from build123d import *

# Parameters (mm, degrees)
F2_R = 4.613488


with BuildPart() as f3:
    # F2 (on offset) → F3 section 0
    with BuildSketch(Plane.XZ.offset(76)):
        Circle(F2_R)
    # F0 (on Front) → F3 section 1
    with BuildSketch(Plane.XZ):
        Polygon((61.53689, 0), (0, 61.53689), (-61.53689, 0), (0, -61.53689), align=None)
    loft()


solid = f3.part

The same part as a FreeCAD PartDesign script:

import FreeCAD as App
import Part
import Sketcher
Q = App.Units.Quantity

doc = App.newDocument("Part")
body = doc.addObject("PartDesign::Body", "Body")

sketch1 = doc.addObject("Sketcher::SketchObject", "Sketch")
body.addObject(sketch1)
sketch1.AttachmentSupport = (doc.XZ_Plane, [""])
sketch1.MapMode = "FlatFace"
sketch1.AttachmentOffset = App.Placement(App.Vector(0, 0, 76), App.Rotation())
sketch1.addGeometry(Part.Circle(App.Vector(0, 0, 0), App.Vector(0, 0, 1), 4.613488), False)
sketch1.addConstraint(Sketcher.Constraint("Coincident", 0, 3, -1, 1))
sketch1.addConstraint(Sketcher.Constraint("Diameter", 0, Q("9.226976 mm")))

sketch2 = doc.addObject("Sketcher::SketchObject", "Sketch001")
body.addObject(sketch2)
sketch2.AttachmentSupport = (doc.XZ_Plane, [""])
sketch2.MapMode = "FlatFace"
sketch2.addGeometry(Part.LineSegment(App.Vector(61.53689, 0, 0), App.Vector(0, 61.53689, 0)), False)
sketch2.addGeometry(Part.LineSegment(App.Vector(0, 61.53689, 0), App.Vector(-61.53689, 0, 0)), False)
sketch2.addGeometry(Part.LineSegment(App.Vector(-61.53689, 0, 0), App.Vector(0, -61.53689, 0)), False)
sketch2.addGeometry(Part.LineSegment(App.Vector(0, -61.53689, 0), App.Vector(61.53689, 0, 0)), False)
sketch2.addConstraint(Sketcher.Constraint("Coincident", 0, 2, 1, 1))
sketch2.addConstraint(Sketcher.Constraint("Coincident", 1, 2, 2, 1))
sketch2.addConstraint(Sketcher.Constraint("Coincident", 2, 2, 3, 1))
sketch2.addConstraint(Sketcher.Constraint("Coincident", 3, 2, 0, 1))
sketch2.addConstraint(Sketcher.Constraint("Symmetric", 0, 2, 2, 2, -1, 1))
sketch2.addConstraint(Sketcher.Constraint("Symmetric", 1, 2, 3, 2, -1, 1))
sketch2.addConstraint(Sketcher.Constraint("PointOnObject", 0, 2, -2))
sketch2.addConstraint(Sketcher.Constraint("PointOnObject", 1, 2, -1))
sketch2.addConstraint(Sketcher.Constraint("Perpendicular", 0, 1))
sketch2.addConstraint(Sketcher.Constraint("DistanceY", -1, 1, 0, 2, Q("61.53689 mm")))

additiveloft = doc.addObject("PartDesign::AdditiveLoft", "AdditiveLoft")
body.addObject(additiveloft)
additiveloft.Profile = sketch1
additiveloft.Sections = [sketch2]

doc.recompute()
